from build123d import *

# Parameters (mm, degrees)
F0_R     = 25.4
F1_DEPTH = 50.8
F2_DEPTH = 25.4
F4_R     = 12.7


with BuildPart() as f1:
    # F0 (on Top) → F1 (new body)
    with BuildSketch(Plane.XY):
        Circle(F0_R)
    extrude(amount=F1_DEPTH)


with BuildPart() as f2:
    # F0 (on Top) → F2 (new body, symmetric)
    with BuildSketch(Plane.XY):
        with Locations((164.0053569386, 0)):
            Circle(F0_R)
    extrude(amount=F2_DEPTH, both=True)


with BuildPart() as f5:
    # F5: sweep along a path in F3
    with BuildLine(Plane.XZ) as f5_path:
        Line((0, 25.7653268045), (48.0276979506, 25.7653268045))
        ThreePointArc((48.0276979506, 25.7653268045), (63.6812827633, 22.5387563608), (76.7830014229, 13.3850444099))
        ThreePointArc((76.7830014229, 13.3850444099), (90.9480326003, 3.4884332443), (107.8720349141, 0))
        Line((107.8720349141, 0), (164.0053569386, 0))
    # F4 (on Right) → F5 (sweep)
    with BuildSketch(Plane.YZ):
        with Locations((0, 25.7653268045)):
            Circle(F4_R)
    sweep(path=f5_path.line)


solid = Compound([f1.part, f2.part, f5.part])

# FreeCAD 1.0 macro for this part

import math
import FreeCAD as App
import Part
import Sketcher
Q = App.Units.Quantity

doc = App.newDocument("Part")
body = doc.addObject("PartDesign::Body", "Body")

sketch1 = body.newObject("Sketcher::SketchObject", "Sketch")
sketch1.AttachmentSupport = (doc.getObject("XY_Plane"), [""])
sketch1.MapMode = "FlatFace"
sketch1.addGeometry(Part.Circle(App.Vector(0, 0, 0), App.Vector(0, 0, 1), 25), False)
sketch1.addConstraint(Sketcher.Constraint("Coincident", 0, 3, -1, 1))
sketch1.addConstraint(Sketcher.Constraint("Diameter", 0, Q("2 in")))
pad1 = body.newObject("PartDesign::Pad", "Pad")
pad1.Profile = sketch1
pad1.Length = Q("2 in")
body2 = doc.addObject("PartDesign::Body", "Body001")

sketch2 = body2.newObject("Sketcher::SketchObject", "Sketch001")
sketch2.AttachmentSupport = (doc.getObject("XY_Plane001"), [""])
sketch2.MapMode = "FlatFace"
sketch2.addGeometry(Part.Circle(App.Vector(164, 0, 0), App.Vector(0, 0, 1), 25), False)
sketch2.addConstraint(Sketcher.Constraint("PointOnObject", 0, 3, -1))
sketch2.addConstraint(Sketcher.Constraint("Diameter", 0, Q("2 in")))
sketch2.addConstraint(Sketcher.Constraint("DistanceX", -1, 1, 0, 3, Q("164.005357 mm")))
pad2 = body2.newObject("PartDesign::Pad", "Pad001")
pad2.Profile = sketch2
pad2.Length = Q("2 in")
pad2.Midplane = True
body3 = doc.addObject("PartDesign::Body", "Body002")

sketch3 = body3.newObject("Sketcher::SketchObject", "Sketch002")
sketch3.AttachmentSupport = (doc.getObject("YZ_Plane002"), [""])
sketch3.MapMode = "FlatFace"
sketch3.addGeometry(Part.Circle(App.Vector(0, 26, 0), App.Vector(0, 0, 1), 13), False)
sketch3.addConstraint(Sketcher.Constraint("PointOnObject", 0, 3, -2))
sketch3.addConstraint(Sketcher.Constraint("Diameter", 0, Q("1 in")))
sketch3.addConstraint(Sketcher.Constraint("DistanceY", -1, 1, 0, 3, Q("25.765327 mm")))

sketch4 = body3.newObject("Sketcher::SketchObject", "Sketch003")
sketch4.AttachmentSupport = (doc.getObject("XZ_Plane002"), [""])
sketch4.MapMode = "FlatFace"
sketch4.addGeometry(Part.LineSegment(App.Vector(0, 26, 0), App.Vector(48, 26, 0)), False)
sketch4.addGeometry(Part.ArcOfCircle(Part.Circle(App.Vector(48, -14, 0), App.Vector(0, 0, 1), 40), math.radians(43), math.radians(90)), False)
sketch4.addGeometry(Part.ArcOfCircle(Part.Circle(App.Vector(108, 43, 0), App.Vector(0, 0, 1), 43), math.radians(-137), math.radians(-90)), False)
sketch4.addGeometry(Part.LineSegment(App.Vector(108, 0, 0), App.Vector(164, 0, 0)), False)
sketch4.addConstraint(Sketcher.Constraint("Tangent", 0, 2, 1, 2))
sketch4.addConstraint(Sketcher.Constraint("Tangent", 1, 1, 2, 1))
sketch4.addConstraint(Sketcher.Constraint("Tangent", 2, 2, 3, 1))
sketch4.addConstraint(Sketcher.Constraint("Horizontal", 0))
sketch4.addConstraint(Sketcher.Constraint("Horizontal", 3))
sketch4.addConstraint(Sketcher.Constraint("PointOnObject", 0, 1, -2))
sketch4.addConstraint(Sketcher.Constraint("PointOnObject", 2, 2, -1))
sketch4.addConstraint(Sketcher.Constraint("Radius", 1, Q("39.584673 mm")))
sketch4.addConstraint(Sketcher.Constraint("Radius", 2, Q("42.797296 mm")))
sketch4.addConstraint(Sketcher.Constraint("DistanceX", -1, 1, 1, 1, Q("76.783001 mm")))
sketch4.addConstraint(Sketcher.Constraint("DistanceX", 0, 1, 0, 2, Q("48.027698 mm")))
sketch4.addConstraint(Sketcher.Constraint("DistanceX", 3, 1, 3, 2, Q("56.133322 mm")))
doc.recompute()

additivepipe = body3.newObject("PartDesign::AdditivePipe", "AdditivePipe")
additivepipe.Profile = sketch3
additivepipe.Spine = (sketch4, ["Edge1", "Edge2", "Edge3", "Edge4"])

doc.recompute()
